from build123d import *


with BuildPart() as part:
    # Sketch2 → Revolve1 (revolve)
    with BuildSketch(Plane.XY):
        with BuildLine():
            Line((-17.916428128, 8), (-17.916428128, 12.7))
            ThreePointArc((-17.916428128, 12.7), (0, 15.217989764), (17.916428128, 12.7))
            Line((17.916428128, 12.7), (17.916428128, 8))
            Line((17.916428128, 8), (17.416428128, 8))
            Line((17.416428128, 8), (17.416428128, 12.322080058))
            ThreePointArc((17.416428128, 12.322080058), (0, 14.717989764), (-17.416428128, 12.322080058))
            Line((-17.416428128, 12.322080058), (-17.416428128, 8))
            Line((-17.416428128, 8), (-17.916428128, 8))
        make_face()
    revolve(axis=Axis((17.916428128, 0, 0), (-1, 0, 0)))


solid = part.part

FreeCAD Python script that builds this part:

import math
import FreeCAD as App
import Part
import Sketcher
from FreeCAD import Vector

doc = App.newDocument("Part")
body = doc.addObject("PartDesign::Body", "Body")

sketch1 = body.newObject("Sketcher::SketchObject", "Sketch")
sketch1.AttachmentSupport = (doc.getObject("XY_Plane"), [""])
sketch1.MapMode = "FlatFace"
sketch1.addGeometry(Part.LineSegment(Vector(-17.916428, 12.7, 0), Vector(-17.916428, 8, 0)), False)
sketch1.addGeometry(Part.LineSegment(Vector(-17.916428, 8, 0), Vector(-17.416428, 8, 0)), False)
sketch1.addGeometry(Part.LineSegment(Vector(-17.416428, 8, 0), Vector(-17.416428, 12.32208, 0)), False)
sketch1.addGeometry(Part.ArcOfCircle(Part.Circle(Vector(0, -49.78201, 0), Vector(0, 0, 1), 64.5), math.radians(74.334416), math.radians(105.665584)), False)
sketch1.addGeometry(Part.LineSegment(Vector(17.416428, 12.32208, 0), Vector(17.416428, 8, 0)), False)
sketch1.addGeometry(Part.LineSegment(Vector(17.416428, 8, 0), Vector(17.916428, 8, 0)), False)
sketch1.addGeometry(Part.LineSegment(Vector(17.916428, 8, 0), Vector(17.916428, 12.7, 0)), False)
sketch1.addGeometry(Part.ArcOfCircle(Part.Circle(Vector(0, -49.78201, 0), Vector(0, 0, 1), 65), math.radians(74), math.radians(106)), False)
sketch1.addConstraint(Sketcher.Constraint("Coincident", 0, 2, 1, 1))
sketch1.addConstraint(Sketcher.Constraint("Coincident", 1, 2, 2, 1))
sketch1.addConstraint(Sketcher.Constraint("Coincident", 2, 2, 3, 2))
sketch1.addConstraint(Sketcher.Constraint("Coincident", 3, 1, 4, 1))
sketch1.addConstraint(Sketcher.Constraint("Coincident", 4, 2, 5, 1))
sketch1.addConstraint(Sketcher.Constraint("Coincident", 5, 2, 6, 1))
sketch1.addConstraint(Sketcher.Constraint("Coincident", 6, 2, 7, 1))
sketch1.addConstraint(Sketcher.Constraint("Coincident", 7, 2, 0, 1))
sketch1.addConstraint(Sketcher.Constraint("Vertical", 0))
sketch1.addConstraint(Sketcher.Constraint("Horizontal", 1))
sketch1.addConstraint(Sketcher.Constraint("Vertical", 2))
sketch1.addConstraint(Sketcher.Constraint("Vertical", 4))
sketch1.addConstraint(Sketcher.Constraint("Horizontal", 5))
sketch1.addConstraint(Sketcher.Constraint("Vertical", 6))
sketch1.addConstraint(Sketcher.Constraint("Coincident", 7, 3, 3, 3))
sketch1.addConstraint(Sketcher.Constraint("Symmetric", 2, 2, 3, 1, -2))
sketch1.addConstraint(Sketcher.Constraint("Symmetric", 0, 2, 5, 2, -2))
sketch1.addConstraint(Sketcher.Constraint("Radius", 7, 65.0))
sketch1.addConstraint(Sketcher.Constraint("Radius", 3, 64.5))
sketch1.addConstraint(Sketcher.Constraint("DistanceX", 1, 1, 1, 2, 0.5))
sketch1.addConstraint(Sketcher.Constraint("DistanceY", 0, 2, 0, 1, 4.7))
sketch1.addConstraint(Sketcher.Constraint("DistanceY", -1, 1, 0, 2, 8.0))
sketch1.addConstraint(Sketcher.Constraint("DistanceY", 3, 3, -1, 1, 49.78201))
revolution = body.newObject("PartDesign::Revolution", "Revolution")
revolution.Profile = sketch1
revolution.ReferenceAxis = (sketch1, ["H_Axis"])
revolution.Angle = 360

doc.recompute()
